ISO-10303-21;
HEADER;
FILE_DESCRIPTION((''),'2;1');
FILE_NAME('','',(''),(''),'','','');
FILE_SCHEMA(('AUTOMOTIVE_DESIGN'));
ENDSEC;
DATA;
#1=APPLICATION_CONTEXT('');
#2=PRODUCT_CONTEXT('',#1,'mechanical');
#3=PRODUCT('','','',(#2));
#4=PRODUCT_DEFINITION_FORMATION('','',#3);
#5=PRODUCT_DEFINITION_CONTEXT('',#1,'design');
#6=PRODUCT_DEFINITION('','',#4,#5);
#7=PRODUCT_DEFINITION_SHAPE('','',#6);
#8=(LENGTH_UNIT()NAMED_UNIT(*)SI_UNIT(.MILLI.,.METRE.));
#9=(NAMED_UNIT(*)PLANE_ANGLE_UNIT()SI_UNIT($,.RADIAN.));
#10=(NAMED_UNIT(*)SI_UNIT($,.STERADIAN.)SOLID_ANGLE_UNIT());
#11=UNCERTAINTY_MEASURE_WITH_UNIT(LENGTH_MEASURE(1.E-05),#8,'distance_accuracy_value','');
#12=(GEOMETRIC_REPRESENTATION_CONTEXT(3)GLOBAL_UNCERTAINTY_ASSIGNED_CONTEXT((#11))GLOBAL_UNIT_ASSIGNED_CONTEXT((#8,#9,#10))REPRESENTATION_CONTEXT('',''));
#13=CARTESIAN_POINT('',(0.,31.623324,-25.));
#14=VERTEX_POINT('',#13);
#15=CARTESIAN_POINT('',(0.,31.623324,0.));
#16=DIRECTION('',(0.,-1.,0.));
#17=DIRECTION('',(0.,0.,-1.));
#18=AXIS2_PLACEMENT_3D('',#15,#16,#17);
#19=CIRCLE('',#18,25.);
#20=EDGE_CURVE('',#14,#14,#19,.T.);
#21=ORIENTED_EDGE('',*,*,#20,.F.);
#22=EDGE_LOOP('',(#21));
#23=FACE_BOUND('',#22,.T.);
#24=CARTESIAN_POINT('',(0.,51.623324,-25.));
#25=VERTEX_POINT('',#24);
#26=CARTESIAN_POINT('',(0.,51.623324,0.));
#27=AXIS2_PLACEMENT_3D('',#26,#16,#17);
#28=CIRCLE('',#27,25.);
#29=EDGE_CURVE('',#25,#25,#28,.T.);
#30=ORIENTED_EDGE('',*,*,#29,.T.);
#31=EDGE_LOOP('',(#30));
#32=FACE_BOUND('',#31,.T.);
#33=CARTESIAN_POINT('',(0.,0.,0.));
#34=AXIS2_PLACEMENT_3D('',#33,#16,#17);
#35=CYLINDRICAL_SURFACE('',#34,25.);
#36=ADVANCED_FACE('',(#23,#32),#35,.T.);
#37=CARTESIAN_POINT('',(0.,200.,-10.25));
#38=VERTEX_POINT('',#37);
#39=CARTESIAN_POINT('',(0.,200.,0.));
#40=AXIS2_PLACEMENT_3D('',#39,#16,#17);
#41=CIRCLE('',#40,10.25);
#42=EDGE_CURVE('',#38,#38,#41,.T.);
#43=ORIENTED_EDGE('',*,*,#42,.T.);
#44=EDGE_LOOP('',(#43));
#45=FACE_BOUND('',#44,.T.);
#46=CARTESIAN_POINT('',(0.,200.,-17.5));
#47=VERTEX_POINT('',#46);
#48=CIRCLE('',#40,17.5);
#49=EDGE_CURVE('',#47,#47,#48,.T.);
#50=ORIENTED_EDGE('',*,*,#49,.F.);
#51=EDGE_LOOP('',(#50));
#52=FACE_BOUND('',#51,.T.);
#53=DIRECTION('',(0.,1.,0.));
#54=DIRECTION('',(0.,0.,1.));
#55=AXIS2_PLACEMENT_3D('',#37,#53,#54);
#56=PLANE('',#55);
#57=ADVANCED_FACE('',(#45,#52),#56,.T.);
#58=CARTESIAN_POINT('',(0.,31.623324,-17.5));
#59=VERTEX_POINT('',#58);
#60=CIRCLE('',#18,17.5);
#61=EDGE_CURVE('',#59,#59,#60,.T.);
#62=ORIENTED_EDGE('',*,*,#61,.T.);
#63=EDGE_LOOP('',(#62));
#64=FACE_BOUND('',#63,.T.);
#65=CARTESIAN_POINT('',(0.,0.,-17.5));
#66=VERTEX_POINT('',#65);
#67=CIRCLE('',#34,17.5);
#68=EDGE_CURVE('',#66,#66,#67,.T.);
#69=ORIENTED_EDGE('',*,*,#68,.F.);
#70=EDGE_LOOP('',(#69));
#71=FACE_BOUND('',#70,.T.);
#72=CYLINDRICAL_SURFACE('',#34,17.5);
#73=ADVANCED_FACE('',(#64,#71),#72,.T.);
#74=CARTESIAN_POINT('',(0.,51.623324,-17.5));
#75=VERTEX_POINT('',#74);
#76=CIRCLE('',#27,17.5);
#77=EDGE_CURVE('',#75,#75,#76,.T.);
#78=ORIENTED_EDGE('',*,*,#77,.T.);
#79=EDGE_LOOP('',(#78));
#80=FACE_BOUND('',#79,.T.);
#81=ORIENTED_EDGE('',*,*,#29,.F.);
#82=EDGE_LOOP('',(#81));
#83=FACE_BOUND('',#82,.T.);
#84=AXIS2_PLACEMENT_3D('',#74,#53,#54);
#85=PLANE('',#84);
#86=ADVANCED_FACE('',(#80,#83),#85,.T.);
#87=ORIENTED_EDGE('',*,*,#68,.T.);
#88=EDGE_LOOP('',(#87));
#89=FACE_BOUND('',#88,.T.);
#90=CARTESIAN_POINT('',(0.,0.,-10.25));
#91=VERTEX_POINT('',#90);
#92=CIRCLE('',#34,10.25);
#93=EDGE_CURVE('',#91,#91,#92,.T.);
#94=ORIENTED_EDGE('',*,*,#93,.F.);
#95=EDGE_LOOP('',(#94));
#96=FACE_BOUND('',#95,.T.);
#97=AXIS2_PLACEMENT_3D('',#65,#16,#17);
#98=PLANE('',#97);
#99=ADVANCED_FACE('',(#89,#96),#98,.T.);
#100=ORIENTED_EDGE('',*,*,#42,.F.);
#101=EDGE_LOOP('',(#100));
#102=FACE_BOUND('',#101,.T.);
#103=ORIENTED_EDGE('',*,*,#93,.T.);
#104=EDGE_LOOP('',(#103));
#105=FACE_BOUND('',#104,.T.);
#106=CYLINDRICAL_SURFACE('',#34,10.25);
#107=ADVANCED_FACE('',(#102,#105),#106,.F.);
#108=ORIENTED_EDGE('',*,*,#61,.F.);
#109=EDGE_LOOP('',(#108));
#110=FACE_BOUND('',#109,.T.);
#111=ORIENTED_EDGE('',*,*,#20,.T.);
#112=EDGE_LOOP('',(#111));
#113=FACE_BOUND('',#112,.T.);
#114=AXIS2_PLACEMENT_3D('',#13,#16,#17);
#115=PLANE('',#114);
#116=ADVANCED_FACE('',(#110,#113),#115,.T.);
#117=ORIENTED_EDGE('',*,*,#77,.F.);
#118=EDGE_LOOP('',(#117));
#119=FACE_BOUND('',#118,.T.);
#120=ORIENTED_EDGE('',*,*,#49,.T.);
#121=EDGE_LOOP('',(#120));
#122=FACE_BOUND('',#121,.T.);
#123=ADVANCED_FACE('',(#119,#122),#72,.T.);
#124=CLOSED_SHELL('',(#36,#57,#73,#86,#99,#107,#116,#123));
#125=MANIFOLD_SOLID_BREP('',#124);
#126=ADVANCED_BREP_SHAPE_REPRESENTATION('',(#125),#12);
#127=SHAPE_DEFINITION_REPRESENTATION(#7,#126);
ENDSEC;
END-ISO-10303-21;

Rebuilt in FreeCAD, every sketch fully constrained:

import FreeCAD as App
import Part
import Sketcher
from FreeCAD import Vector
Q = App.Units.Quantity


def add_polygon(sketch, points):
    """Adds a closed chain of lines whose ends are joined by coincident constraints."""
    first, n = sketch.GeometryCount, len(points)
    for a, b in zip(points, points[1:] + points[:1]):
        sketch.addGeometry(Part.LineSegment(App.Vector(*a, 0), App.Vector(*b, 0)), False)
    for i in range(n):
        sketch.addConstraint(Sketcher.Constraint("Coincident", first + i, 2, first + (i + 1) % n, 1))

doc = App.newDocument("Part")
body = doc.addObject("PartDesign::Body", "Body")

# Sketch on YZ plane
sketch1 = doc.addObject("Sketcher::SketchObject", "Sketch")
body.addObject(sketch1)
sketch1.AttachmentSupport = (doc.YZ_Plane, [""])
sketch1.MapMode = "FlatFace"
add_polygon(sketch1, [(200, -10), (0, -10), (0, -18), (32, -18), (32, -25), (52, -25), (52, -18), (200, -18)])  # lines 0-7
sketch1.addConstraint([
    Sketcher.Constraint("Horizontal", 0),
    Sketcher.Constraint("Vertical", 1),
    Sketcher.Constraint("Horizontal", 2),
    Sketcher.Constraint("Vertical", 3),
    Sketcher.Constraint("Horizontal", 4),
    Sketcher.Constraint("Vertical", 5),
    Sketcher.Constraint("Horizontal", 6),
    Sketcher.Constraint("Vertical", 7),
    Sketcher.Constraint("PointOnObject", 0, 2, -2),
    Sketcher.Constraint("Horizontal", 2, 2, 5, 2),
    Sketcher.Constraint("DistanceX", 0, 2, 0, 1, Q("200 mm")),
    Sketcher.Constraint("DistanceX", 4, 1, 4, 2, Q("20 mm")),
    Sketcher.Constraint("DistanceY", 3, 2, 3, 1, Q("7.5 mm")),
    Sketcher.Constraint("DistanceY", 3, 2, -1, 1, Q("25 mm")),
    Sketcher.Constraint("DistanceY", 1, 2, 1, 1, Q("7.25 mm")),
    Sketcher.Constraint("DistanceX", 2, 1, 2, 2, Q("31.623324 mm")),
])
revolution = doc.addObject("PartDesign::Revolution", "Revolution")
body.addObject(revolution)
revolution.Profile = sketch1
revolution.ReferenceAxis = (sketch1, ["H_Axis"])
revolution.Angle = 360

doc.recompute()
